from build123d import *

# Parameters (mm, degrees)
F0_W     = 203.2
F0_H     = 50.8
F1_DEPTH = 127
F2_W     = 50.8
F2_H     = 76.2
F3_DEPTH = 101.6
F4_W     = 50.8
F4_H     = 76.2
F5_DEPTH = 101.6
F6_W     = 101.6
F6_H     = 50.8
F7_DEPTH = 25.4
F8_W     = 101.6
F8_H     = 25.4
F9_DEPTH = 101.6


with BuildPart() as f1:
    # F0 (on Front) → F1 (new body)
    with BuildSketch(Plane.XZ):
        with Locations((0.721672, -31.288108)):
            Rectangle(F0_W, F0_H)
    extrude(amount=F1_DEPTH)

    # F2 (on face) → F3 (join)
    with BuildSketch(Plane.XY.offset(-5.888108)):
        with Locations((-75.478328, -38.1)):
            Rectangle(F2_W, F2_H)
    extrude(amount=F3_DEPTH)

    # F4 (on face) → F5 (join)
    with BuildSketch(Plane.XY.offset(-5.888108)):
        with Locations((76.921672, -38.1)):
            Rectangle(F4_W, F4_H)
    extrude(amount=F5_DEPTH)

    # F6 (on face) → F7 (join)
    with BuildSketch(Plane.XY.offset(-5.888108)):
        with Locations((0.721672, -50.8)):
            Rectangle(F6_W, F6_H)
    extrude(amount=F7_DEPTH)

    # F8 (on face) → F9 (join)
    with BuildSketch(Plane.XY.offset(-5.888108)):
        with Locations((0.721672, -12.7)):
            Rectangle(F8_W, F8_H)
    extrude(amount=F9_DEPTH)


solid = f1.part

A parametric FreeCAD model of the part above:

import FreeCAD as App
import Part
import Sketcher
from FreeCAD import Vector
Q = App.Units.Quantity

doc = App.newDocument("Part")
params = doc.addObject("Spreadsheet::Sheet", "Params")
for row, (alias, value) in enumerate([
    ("sketch1_width", "8 in"),
    ("sketch1_height", "2 in"),
    ("pad1_length", "5 in"),
    ("sketch2_width", "2 in"),
    ("sketch2_height", "3 in"),
    ("pad2_length", "4 in"),
    ("sketch3_width", "2 in"),
    ("sketch3_height", "3 in"),
    ("pad3_length", "4 in"),
    ("sketch4_width", "4 in"),
    ("sketch4_height", "2 in"),
    ("pad4_length", "1 in"),
    ("sketch5_width", "4 in"),
    ("sketch5_height", "1 in"),
    ("pad5_length", "4 in"),
], start=1):
    params.set(f"A{row}", alias)
    params.set(f"B{row}", "=" + value)
    params.setAlias(f"B{row}", alias)

body = doc.addObject("PartDesign::Body", "Body")

# Sketch on XZ plane
sketch1 = body.newObject("Sketcher::SketchObject", "Sketch")
sketch1.AttachmentSupport = (doc.getObject("XZ_Plane"), [""])
sketch1.MapMode = "FlatFace"
sketch1.addGeometry(Part.LineSegment(Vector(-101, -6, 0), Vector(-101, -57, 0)), False)
sketch1.addGeometry(Part.LineSegment(Vector(-101, -57, 0), Vector(102, -57, 0)), False)
sketch1.addGeometry(Part.LineSegment(Vector(102, -57, 0), Vector(102, -6, 0)), False)
sketch1.addGeometry(Part.LineSegment(Vector(102, -6, 0), Vector(-101, -6, 0)), False)
sketch1.addConstraint(Sketcher.Constraint("Coincident", 0, 2, 1, 1))
sketch1.addConstraint(Sketcher.Constraint("Coincident", 1, 2, 2, 1))
sketch1.addConstraint(Sketcher.Constraint("Coincident", 2, 2, 3, 1))
sketch1.addConstraint(Sketcher.Constraint("Coincident", 3, 2, 0, 1))
sketch1.addConstraint(Sketcher.Constraint("Vertical", 0))
sketch1.addConstraint(Sketcher.Constraint("Horizontal", 1))
sketch1.addConstraint(Sketcher.Constraint("Vertical", 2))
sketch1.addConstraint(Sketcher.Constraint("Horizontal", 3))
sketch1.addConstraint(Sketcher.Constraint("DistanceX", 1, 1, 1, 2, Q("8 in")))
sketch1.addConstraint(Sketcher.Constraint("DistanceY", 0, 2, 0, 1, Q("2 in")))
sketch1.addConstraint(Sketcher.Constraint("DistanceX", 0, 2, -1, 1, 100.878328))
sketch1.addConstraint(Sketcher.Constraint("DistanceY", 0, 2, -1, 1, 56.688108))
sketch1.setExpression("Constraints[8]", "Params.sketch1_width")
sketch1.setExpression("Constraints[9]", "Params.sketch1_height")
pad1 = body.newObject("PartDesign::Pad", "Pad")
pad1.Profile = sketch1
pad1.setExpression("Length", "Params.pad1_length")

# Sketch on XY plane
sketch2 = body.newObject("Sketcher::SketchObject", "Sketch001")
sketch2.AttachmentSupport = (doc.getObject("XY_Plane"), [""])
sketch2.MapMode = "FlatFace"
sketch2.AttachmentOffset = App.Placement(Vector(0, 0, -5.888108), App.Rotation())
sketch2.addGeometry(Part.LineSegment(Vector(-101, 0, 0), Vector(-101, -76, 0)), False)
sketch2.addGeometry(Part.LineSegment(Vector(-101, -76, 0), Vector(-50, -76, 0)), False)
sketch2.addGeometry(Part.LineSegment(Vector(-50, -76, 0), Vector(-50, 0, 0)), False)
sketch2.addGeometry(Part.LineSegment(Vector(-50, 0, 0), Vector(-101, 0, 0)), False)
sketch2.addConstraint(Sketcher.Constraint("Coincident", 0, 2, 1, 1))
sketch2.addConstraint(Sketcher.Constraint("Coincident", 1, 2, 2, 1))
sketch2.addConstraint(Sketcher.Constraint("Coincident", 2, 2, 3, 1))
sketch2.addConstraint(Sketcher.Constraint("Coincident", 3, 2, 0, 1))
sketch2.addConstraint(Sketcher.Constraint("Vertical", 0))
sketch2.addConstraint(Sketcher.Constraint("Horizontal", 1))
sketch2.addConstraint(Sketcher.Constraint("Vertical", 2))
sketch2.addConstraint(Sketcher.Constraint("Horizontal", 3))
sketch2.addConstraint(Sketcher.Constraint("PointOnObject", 2, 2, -1))
sketch2.addConstraint(Sketcher.Constraint("DistanceX", 1, 1, 1, 2, Q("2 in")))
sketch2.addConstraint(Sketcher.Constraint("DistanceY", 0, 2, 0, 1, Q("3 in")))
sketch2.addConstraint(Sketcher.Constraint("DistanceX", 0, 2, -1, 1, 100.878328))
sketch2.setExpression("Constraints[9]", "Params.sketch2_width")
sketch2.setExpression("Constraints[10]", "Params.sketch2_height")
pad2 = body.newObject("PartDesign::Pad", "Pad001")
pad2.Profile = sketch2
pad2.setExpression("Length", "Params.pad2_length")

# Sketch on XY plane
sketch3 = body.newObject("Sketcher::SketchObject", "Sketch002")
sketch3.AttachmentSupport = (doc.getObject("XY_Plane"), [""])
sketch3.MapMode = "FlatFace"
sketch3.AttachmentOffset = App.Placement(Vector(0, 0, -5.888108), App.Rotation())
sketch3.addGeometry(Part.LineSegment(Vector(52, 0, 0), Vector(52, -76, 0)), False)
sketch3.addGeometry(Part.LineSegment(Vector(52, -76, 0), Vector(102, -76, 0)), False)
sketch3.addGeometry(Part.LineSegment(Vector(102, -76, 0), Vector(102, 0, 0)), False)
sketch3.addGeometry(Part.LineSegment(Vector(102, 0, 0), Vector(52, 0, 0)), False)
sketch3.addConstraint(Sketcher.Constraint("Coincident", 0, 2, 1, 1))
sketch3.addConstraint(Sketcher.Constraint("Coincident", 1, 2, 2, 1))
sketch3.addConstraint(Sketcher.Constraint("Coincident", 2, 2, 3, 1))
sketch3.addConstraint(Sketcher.Constraint("Coincident", 3, 2, 0, 1))
sketch3.addConstraint(Sketcher.Constraint("Vertical", 0))
sketch3.addConstraint(Sketcher.Constraint("Horizontal", 1))
sketch3.addConstraint(Sketcher.Constraint("Vertical", 2))
sketch3.addConstraint(Sketcher.Constraint("Horizontal", 3))
sketch3.addConstraint(Sketcher.Constraint("PointOnObject", 2, 2, -1))
sketch3.addConstraint(Sketcher.Constraint("DistanceX", 1, 1, 1, 2, Q("2 in")))
sketch3.addConstraint(Sketcher.Constraint("DistanceY", 0, 2, 0, 1, Q("3 in")))
sketch3.addConstraint(Sketcher.Constraint("DistanceX", -1, 1, 0, 2, 51.521672))
sketch3.setExpression("Constraints[9]", "Params.sketch3_width")
sketch3.setExpression("Constraints[10]", "Params.sketch3_height")
pad3 = body.newObject("PartDesign::Pad", "Pad002")
pad3.Profile = sketch3
pad3.setExpression("Length", "Params.pad3_length")

# Sketch on XY plane
sketch4 = body.newObject("Sketcher::SketchObject", "Sketch003")
sketch4.AttachmentSupport = (doc.getObject("XY_Plane"), [""])
sketch4.MapMode = "FlatFace"
sketch4.AttachmentOffset = App.Placement(Vector(0, 0, -5.888108), App.Rotation())
sketch4.addGeometry(Part.LineSegment(Vector(-50, -25, 0), Vector(-50, -76, 0)), False)
sketch4.addGeometry(Part.LineSegment(Vector(-50, -76, 0), Vector(52, -76, 0)), False)
sketch4.addGeometry(Part.LineSegment(Vector(52, -76, 0), Vector(52, -25, 0)), False)
sketch4.addGeometry(Part.LineSegment(Vector(52, -25, 0), Vector(-50, -25, 0)), False)
sketch4.addConstraint(Sketcher.Constraint("Coincident", 0, 2, 1, 1))
sketch4.addConstraint(Sketcher.Constraint("Coincident", 1, 2, 2, 1))
sketch4.addConstraint(Sketcher.Constraint("Coincident", 2, 2, 3, 1))
sketch4.addConstraint(Sketcher.Constraint("Coincident", 3, 2, 0, 1))
sketch4.addConstraint(Sketcher.Constraint("Vertical", 0))
sketch4.addConstraint(Sketcher.Constraint("Horizontal", 1))
sketch4.addConstraint(Sketcher.Constraint("Vertical", 2))
sketch4.addConstraint(Sketcher.Constraint("Horizontal", 3))
sketch4.addConstraint(Sketcher.Constraint("DistanceX", 1, 1, 1, 2, Q("4 in")))
sketch4.addConstraint(Sketcher.Constraint("DistanceY", 0, 2, 0, 1, Q("2 in")))
sketch4.addConstraint(Sketcher.Constraint("DistanceY", 0, 2, -1, 1, Q("3 in")))
sketch4.addConstraint(Sketcher.Constraint("DistanceX", 0, 2, -1, 1, 50.078328))
sketch4.setExpression("Constraints[8]", "Params.sketch4_width")
sketch4.setExpression("Constraints[9]", "Params.sketch4_height")
pad4 = body.newObject("PartDesign::Pad", "Pad003")
pad4.Profile = sketch4
pad4.setExpression("Length", "Params.pad4_length")

# Sketch on XY plane
sketch5 = body.newObject("Sketcher::SketchObject", "Sketch004")
sketch5.AttachmentSupport = (doc.getObject("XY_Plane"), [""])
sketch5.MapMode = "FlatFace"
sketch5.AttachmentOffset = App.Placement(Vector(0, 0, -5.888108), App.Rotation())
sketch5.addGeometry(Part.LineSegment(Vector(-50, 0, 0), Vector(-50, -25, 0)), False)
sketch5.addGeometry(Part.LineSegment(Vector(-50, -25, 0), Vector(52, -25, 0)), False)
sketch5.addGeometry(Part.LineSegment(Vector(52, -25, 0), Vector(52, 0, 0)), False)
sketch5.addGeometry(Part.LineSegment(Vector(52, 0, 0), Vector(-50, 0, 0)), False)
sketch5.addConstraint(Sketcher.Constraint("Coincident", 0, 2, 1, 1))
sketch5.addConstraint(Sketcher.Constraint("Coincident", 1, 2, 2, 1))
sketch5.addConstraint(Sketcher.Constraint("Coincident", 2, 2, 3, 1))
sketch5.addConstraint(Sketcher.Constraint("Coincident", 3, 2, 0, 1))
sketch5.addConstraint(Sketcher.Constraint("Vertical", 0))
sketch5.addConstraint(Sketcher.Constraint("Horizontal", 1))
sketch5.addConstraint(Sketcher.Constraint("Vertical", 2))
sketch5.addConstraint(Sketcher.Constraint("Horizontal", 3))
sketch5.addConstraint(Sketcher.Constraint("PointOnObject", 2, 2, -1))
sketch5.addConstraint(Sketcher.Constraint("DistanceX", 1, 1, 1, 2, Q("4 in")))
sketch5.addConstraint(Sketcher.Constraint("DistanceY", 0, 2, 0, 1, Q("1 in")))
sketch5.addConstraint(Sketcher.Constraint("DistanceX", 0, 2, -1, 1, 50.078328))
sketch5.setExpression("Constraints[9]", "Params.sketch5_width")
sketch5.setExpression("Constraints[10]", "Params.sketch5_height")
pad5 = body.newObject("PartDesign::Pad", "Pad004")
pad5.Profile = sketch5
pad5.setExpression("Length", "Params.pad5_length")

doc.recompute()
